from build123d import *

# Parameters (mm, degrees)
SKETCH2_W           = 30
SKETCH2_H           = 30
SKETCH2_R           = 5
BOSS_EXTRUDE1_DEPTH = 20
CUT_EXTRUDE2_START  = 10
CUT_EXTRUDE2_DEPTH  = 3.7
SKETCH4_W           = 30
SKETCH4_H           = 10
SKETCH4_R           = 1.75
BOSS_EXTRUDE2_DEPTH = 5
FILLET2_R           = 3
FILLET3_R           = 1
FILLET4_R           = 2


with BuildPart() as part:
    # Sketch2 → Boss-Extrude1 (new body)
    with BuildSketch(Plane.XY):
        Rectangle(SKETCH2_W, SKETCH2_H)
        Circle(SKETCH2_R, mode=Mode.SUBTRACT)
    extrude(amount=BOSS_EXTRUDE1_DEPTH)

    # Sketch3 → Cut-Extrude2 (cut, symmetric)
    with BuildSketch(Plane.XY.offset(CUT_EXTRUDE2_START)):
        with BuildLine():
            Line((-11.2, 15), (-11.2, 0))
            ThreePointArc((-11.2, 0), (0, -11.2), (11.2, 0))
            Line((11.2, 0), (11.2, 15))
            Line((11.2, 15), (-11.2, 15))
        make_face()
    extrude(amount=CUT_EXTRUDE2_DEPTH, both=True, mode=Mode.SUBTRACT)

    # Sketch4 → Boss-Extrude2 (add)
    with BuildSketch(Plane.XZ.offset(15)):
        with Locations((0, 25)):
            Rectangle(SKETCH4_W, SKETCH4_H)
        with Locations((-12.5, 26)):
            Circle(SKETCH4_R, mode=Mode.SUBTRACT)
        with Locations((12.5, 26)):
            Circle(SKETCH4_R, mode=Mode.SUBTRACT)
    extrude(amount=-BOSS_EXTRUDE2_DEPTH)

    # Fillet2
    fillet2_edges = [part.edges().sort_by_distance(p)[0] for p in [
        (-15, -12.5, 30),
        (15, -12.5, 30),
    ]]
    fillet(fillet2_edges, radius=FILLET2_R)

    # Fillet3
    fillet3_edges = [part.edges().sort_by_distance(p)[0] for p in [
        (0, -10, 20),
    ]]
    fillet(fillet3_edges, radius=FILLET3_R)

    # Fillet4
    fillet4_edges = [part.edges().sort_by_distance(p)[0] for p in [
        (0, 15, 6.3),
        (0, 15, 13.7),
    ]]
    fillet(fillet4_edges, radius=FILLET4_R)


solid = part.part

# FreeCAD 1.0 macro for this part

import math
import FreeCAD as App
import Part
import Sketcher
from FreeCAD import Vector
Q = App.Units.Quantity


def edges_at(feature, points):
    """Names of the edges that pass closest to the given points."""
    edges = feature.Shape.Edges
    near = lambda p: min(range(len(edges)), key=lambda i: edges[i].distToShape(Part.Vertex(*p))[0])
    return sorted({f"Edge{near(p) + 1}" for p in points})

doc = App.newDocument("Part")
body = doc.addObject("PartDesign::Body", "Body")

sketch1 = body.newObject("Sketcher::SketchObject", "Sketch")
sketch1.AttachmentSupport = (doc.getObject("XY_Plane"), [""])
sketch1.MapMode = "FlatFace"
sketch1.addGeometry([
    Part.LineSegment(Vector(-15, 15, 0), Vector(-15, -15, 0)),
    Part.LineSegment(Vector(-15, -15, 0), Vector(15, -15, 0)),
    Part.LineSegment(Vector(15, -15, 0), Vector(15, 15, 0)),
    Part.LineSegment(Vector(15, 15, 0), Vector(-15, 15, 0)),
    Part.Circle(Vector(0, 0, 0), Vector(0, 0, 1), 5),
], False)
sketch1.addConstraint([
    Sketcher.Constraint("Coincident", 0, 2, 1, 1),
    Sketcher.Constraint("Coincident", 1, 2, 2, 1),
    Sketcher.Constraint("Coincident", 2, 2, 3, 1),
    Sketcher.Constraint("Coincident", 3, 2, 0, 1),
    Sketcher.Constraint("Vertical", 0),
    Sketcher.Constraint("Horizontal", 1),
    Sketcher.Constraint("Vertical", 2),
    Sketcher.Constraint("Horizontal", 3),
    Sketcher.Constraint("Coincident", 4, 3, -1, 1),
    Sketcher.Constraint("Symmetric", 0, 2, 2, 2, -1, 1),
    Sketcher.Constraint("Equal", 3, 0),
    Sketcher.Constraint("Diameter", 4, Q("10 mm")),
    Sketcher.Constraint("DistanceX", 1, 1, 1, 2, Q("30 mm")),
])
pad1 = body.newObject("PartDesign::Pad", "Pad")
pad1.Profile = sketch1
pad1.Length = 20

sketch2 = body.newObject("Sketcher::SketchObject", "Sketch001")
sketch2.AttachmentSupport = (doc.getObject("XY_Plane"), [""])
sketch2.MapMode = "FlatFace"
sketch2.AttachmentOffset = App.Placement(Vector(0, 0, 10), App.Rotation())
sketch2.addGeometry([
    Part.LineSegment(Vector(-11, 15, 0), Vector(-11, 0, 0)),
    Part.ArcOfCircle(Part.Circle(Vector(0, 0, 0), Vector(0, 0, 1), 11), math.radians(180), math.radians(360)),
    Part.LineSegment(Vector(11, 0, 0), Vector(11, 15, 0)),
    Part.LineSegment(Vector(11, 15, 0), Vector(-11, 15, 0)),
], False)
sketch2.addConstraint([
    Sketcher.Constraint("Tangent", 0, 2, 1, 1),
    Sketcher.Constraint("Tangent", 1, 2, 2, 1),
    Sketcher.Constraint("Coincident", 2, 2, 3, 1),
    Sketcher.Constraint("Coincident", 3, 2, 0, 1),
    Sketcher.Constraint("Vertical", 0),
    Sketcher.Constraint("Vertical", 2),
    Sketcher.Constraint("Horizontal", 3),
    Sketcher.Constraint("Coincident", 1, 3, -1, 1),
    Sketcher.Constraint("Radius", 1, Q("11.2 mm")),
    Sketcher.Constraint("DistanceY", 0, 2, 0, 1, Q("15 mm")),
])
pocket1 = body.newObject("PartDesign::Pocket", "Pocket")
pocket1.Profile = sketch2
pocket1.Length = 7.4
pocket1.Midplane = True

sketch3 = body.newObject("Sketcher::SketchObject", "Sketch002")
sketch3.AttachmentSupport = (doc.getObject("XZ_Plane"), [""])
sketch3.MapMode = "FlatFace"
sketch3.AttachmentOffset = App.Placement(Vector(0, 0, 15), App.Rotation())
sketch3.addGeometry([
    Part.LineSegment(Vector(-15, 30, 0), Vector(-15, 20, 0)),
    Part.LineSegment(Vector(-15, 20, 0), Vector(15, 20, 0)),
    Part.LineSegment(Vector(15, 20, 0), Vector(15, 30, 0)),
    Part.LineSegment(Vector(15, 30, 0), Vector(-15, 30, 0)),
    Part.Circle(Vector(-12.5, 26, 0), Vector(0, 0, 1), 1.8),
    Part.Circle(Vector(12.5, 26, 0), Vector(0, 0, 1), 1.8),
], False)
sketch3.addConstraint([
    Sketcher.Constraint("Coincident", 0, 2, 1, 1),
    Sketcher.Constraint("Coincident", 1, 2, 2, 1),
    Sketcher.Constraint("Coincident", 2, 2, 3, 1),
    Sketcher.Constraint("Coincident", 3, 2, 0, 1),
    Sketcher.Constraint("Vertical", 0),
    Sketcher.Constraint("Horizontal", 1),
    Sketcher.Constraint("Vertical", 2),
    Sketcher.Constraint("Horizontal", 3),
    Sketcher.Constraint("Equal", 4, 5),
    Sketcher.Constraint("Symmetric", 4, 3, 5, 3, -2),
    Sketcher.Constraint("Diameter", 4, Q("3.5 mm")),
    Sketcher.Constraint("DistanceX", 1, 1, 1, 2, Q("30 mm")),
    Sketcher.Constraint("DistanceY", 0, 2, 0, 1, Q("10 mm")),
    Sketcher.Constraint("DistanceY", -1, 1, 4, 3, Q("26 mm")),
    Sketcher.Constraint("DistanceX", 0, 2, -1, 1, Q("15 mm")),
    Sketcher.Constraint("DistanceY", -1, 1, 0, 2, Q("20 mm")),
    Sketcher.Constraint("DistanceX", 4, 3, 5, 3, Q("25 mm")),
])
pad2 = body.newObject("PartDesign::Pad", "Pad001")
pad2.Profile = sketch3
pad2.Length = 5
pad2.Reversed = True
doc.recompute()

fillet = body.newObject("PartDesign::Fillet", "Fillet")
fillet.Base = (pad2, edges_at(pad2, [(-15, -12.5, 30), (15, -12.5, 30)]))
fillet.Radius = 3
doc.recompute()

fillet2 = body.newObject("PartDesign::Fillet", "Fillet001")
fillet2.Base = (fillet, edges_at(fillet, [(0, -10, 20)]))
fillet2.Radius = 1
doc.recompute()

fillet3 = body.newObject("PartDesign::Fillet", "Fillet002")
fillet3.Base = (fillet2, edges_at(fillet2, [(0, 15, 6.3), (0, 15, 13.7)]))
fillet3.Radius = 2

doc.recompute()
